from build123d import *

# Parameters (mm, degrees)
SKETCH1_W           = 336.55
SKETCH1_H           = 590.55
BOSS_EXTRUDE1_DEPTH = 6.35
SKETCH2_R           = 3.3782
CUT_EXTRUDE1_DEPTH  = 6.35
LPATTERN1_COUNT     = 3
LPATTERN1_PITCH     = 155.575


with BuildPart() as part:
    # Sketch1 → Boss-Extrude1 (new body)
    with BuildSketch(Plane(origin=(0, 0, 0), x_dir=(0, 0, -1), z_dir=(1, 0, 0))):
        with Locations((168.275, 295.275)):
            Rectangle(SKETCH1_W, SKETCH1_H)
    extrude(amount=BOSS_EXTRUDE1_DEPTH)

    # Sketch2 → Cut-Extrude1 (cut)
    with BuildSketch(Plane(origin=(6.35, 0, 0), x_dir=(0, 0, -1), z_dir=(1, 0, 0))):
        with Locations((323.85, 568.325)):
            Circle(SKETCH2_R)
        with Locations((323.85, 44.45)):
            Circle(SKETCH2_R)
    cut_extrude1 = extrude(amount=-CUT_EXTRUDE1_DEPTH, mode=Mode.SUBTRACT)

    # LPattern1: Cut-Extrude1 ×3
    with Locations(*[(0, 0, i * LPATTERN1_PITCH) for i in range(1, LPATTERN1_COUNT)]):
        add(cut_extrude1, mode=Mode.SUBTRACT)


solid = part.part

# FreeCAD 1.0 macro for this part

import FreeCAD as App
import Part
import Sketcher
from FreeCAD import Vector
Q = App.Units.Quantity

doc = App.newDocument("Part")
body = doc.addObject("PartDesign::Body", "Body")

# Sketch on YZ plane
sketch1 = body.newObject("Sketcher::SketchObject", "Sketch")
sketch1.AttachmentSupport = (doc.getObject("YZ_Plane"), [""])
sketch1.MapMode = "FlatFace"
sketch1.addGeometry(Part.LineSegment(Vector(591, 0, 0), Vector(0, 0, 0)), False)
sketch1.addGeometry(Part.LineSegment(Vector(0, 0, 0), Vector(0, -337, 0)), False)
sketch1.addGeometry(Part.LineSegment(Vector(0, -337, 0), Vector(591, -337, 0)), False)
sketch1.addGeometry(Part.LineSegment(Vector(591, -337, 0), Vector(591, 0, 0)), False)
sketch1.addConstraint(Sketcher.Constraint("Coincident", 0, 2, 1, 1))
sketch1.addConstraint(Sketcher.Constraint("Coincident", 1, 2, 2, 1))
sketch1.addConstraint(Sketcher.Constraint("Coincident", 2, 2, 3, 1))
sketch1.addConstraint(Sketcher.Constraint("Coincident", 3, 2, 0, 1))
sketch1.addConstraint(Sketcher.Constraint("Horizontal", 0))
sketch1.addConstraint(Sketcher.Constraint("Vertical", 1))
sketch1.addConstraint(Sketcher.Constraint("Horizontal", 2))
sketch1.addConstraint(Sketcher.Constraint("Vertical", 3))
sketch1.addConstraint(Sketcher.Constraint("Coincident", 0, 2, -1, 1))
sketch1.addConstraint(Sketcher.Constraint("DistanceX", 0, 2, 0, 1, Q("23.25 in")))
sketch1.addConstraint(Sketcher.Constraint("DistanceY", 1, 2, 1, 1, Q("13.25 in")))
pad1 = body.newObject("PartDesign::Pad", "Pad")
pad1.Profile = sketch1
pad1.Length = Q("0.25 in")

# Sketch on YZ plane
sketch2 = body.newObject("Sketcher::SketchObject", "Sketch001")
sketch2.AttachmentSupport = (doc.getObject("YZ_Plane"), [""])
sketch2.MapMode = "FlatFace"
sketch2.AttachmentOffset = App.Placement(Vector(0, 0, 0.25 * 25.4), App.Rotation())
sketch2.addGeometry(Part.Circle(Vector(568.3, -323.9, 0), Vector(0, 0, 1), 3.4), False)
sketch2.addGeometry(Part.Circle(Vector(44.5, -323.9, 0), Vector(0, 0, 1), 3.4), False)
sketch2.addConstraint(Sketcher.Constraint("Equal", 0, 1))
sketch2.addConstraint(Sketcher.Constraint("Horizontal", 0, 3, 1, 3))
sketch2.addConstraint(Sketcher.Constraint("Diameter", 0, Q("0.266 in")))
sketch2.addConstraint(Sketcher.Constraint("DistanceY", 0, 3, -1, 1, Q("12.75 in")))
sketch2.addConstraint(Sketcher.Constraint("DistanceX", -1, 1, 1, 3, Q("1.75 in")))
sketch2.addConstraint(Sketcher.Constraint("DistanceX", -1, 1, 0, 3, Q("22.375 in")))
pocket1 = body.newObject("PartDesign::Pocket", "Pocket")
pocket1.Profile = sketch2
pocket1.Length = Q("0.25 in")
doc.recompute()

linearpattern = body.newObject("PartDesign::LinearPattern", "LinearPattern")
linearpattern.Originals = [pocket1]
linearpattern.Direction = (doc.getObject("Z_Axis"), [""])
linearpattern.Mode = "offset"
linearpattern.Offset = Q("6.125 in")
linearpattern.Occurrences = 3
body.Tip = linearpattern

doc.recompute()
